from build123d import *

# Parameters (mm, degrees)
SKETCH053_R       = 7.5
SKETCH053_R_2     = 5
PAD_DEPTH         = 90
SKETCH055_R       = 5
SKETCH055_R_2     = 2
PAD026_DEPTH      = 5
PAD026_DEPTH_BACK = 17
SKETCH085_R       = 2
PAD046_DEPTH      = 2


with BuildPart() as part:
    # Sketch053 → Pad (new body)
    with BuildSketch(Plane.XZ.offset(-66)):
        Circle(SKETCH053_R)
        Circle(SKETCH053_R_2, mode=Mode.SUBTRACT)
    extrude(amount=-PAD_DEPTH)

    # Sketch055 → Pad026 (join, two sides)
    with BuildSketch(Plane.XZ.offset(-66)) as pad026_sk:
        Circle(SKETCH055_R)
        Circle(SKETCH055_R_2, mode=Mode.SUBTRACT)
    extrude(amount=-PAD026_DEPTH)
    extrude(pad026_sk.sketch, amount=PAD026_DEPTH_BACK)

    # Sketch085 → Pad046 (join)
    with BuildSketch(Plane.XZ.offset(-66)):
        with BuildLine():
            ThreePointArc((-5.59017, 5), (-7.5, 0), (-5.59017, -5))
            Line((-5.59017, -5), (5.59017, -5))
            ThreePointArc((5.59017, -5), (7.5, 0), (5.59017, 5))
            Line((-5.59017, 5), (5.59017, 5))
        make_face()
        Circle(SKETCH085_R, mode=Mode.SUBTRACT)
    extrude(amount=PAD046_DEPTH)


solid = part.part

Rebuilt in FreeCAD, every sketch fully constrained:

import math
import FreeCAD as App
import Part
import Sketcher

V = App.Vector

doc = App.newDocument("Part")
body = doc.addObject("PartDesign::Body", "Body")

sketch1 = doc.addObject("Sketcher::SketchObject", "Sketch")
body.addObject(sketch1)
sketch1.AttachmentSupport = (doc.XZ_Plane, [""])
sketch1.MapMode = "FlatFace"
sketch1.AttachmentOffset = App.Placement(V(0, 0, -66), App.Rotation())
sketch1.addGeometry([
    Part.Circle(V(0, 0, 0), V(0, 0, 1), 8),
    Part.Circle(V(0, 0, 0), V(0, 0, 1), 5),
], False)
sketch1.addConstraint([
    Sketcher.Constraint("Coincident", 0, 3, -1, 1),
    Sketcher.Constraint("Coincident", 1, 3, -1, 1),
    Sketcher.Constraint("Diameter", 0, 15.0),
    Sketcher.Constraint("Diameter", 1, 10.0),
])
pad1 = doc.addObject("PartDesign::Pad", "Pad")
body.addObject(pad1)
pad1.Profile = sketch1
pad1.Length = 90
pad1.Reversed = True

sketch2 = doc.addObject("Sketcher::SketchObject", "Sketch001")
body.addObject(sketch2)
sketch2.AttachmentSupport = (doc.XZ_Plane, [""])
sketch2.MapMode = "FlatFace"
sketch2.AttachmentOffset = App.Placement(V(0, 0, -66), App.Rotation())
sketch2.addGeometry([
    Part.Circle(V(0, 0, 0), V(0, 0, 1), 5),
    Part.Circle(V(0, 0, 0), V(0, 0, 1), 2),
], False)
sketch2.addConstraint([
    Sketcher.Constraint("Coincident", 0, 3, -1, 1),
    Sketcher.Constraint("Coincident", 1, 3, -1, 1),
    Sketcher.Constraint("Diameter", 0, 10.0),
    Sketcher.Constraint("Diameter", 1, 4.0),
])
pad2 = doc.addObject("PartDesign::Pad", "Pad001")
body.addObject(pad2)
pad2.Profile = sketch2
pad2.Type = "TwoLengths"
pad2.Length = 5
pad2.Length2 = 17
pad2.Reversed = True

sketch3 = doc.addObject("Sketcher::SketchObject", "Sketch002")
body.addObject(sketch3)
sketch3.AttachmentSupport = (doc.XZ_Plane, [""])
sketch3.MapMode = "FlatFace"
sketch3.AttachmentOffset = App.Placement(V(0, 0, -66), App.Rotation())
sketch3.addGeometry([
    Part.ArcOfCircle(Part.Circle(V(0, 0, 0), V(0, 0, 1), 7.5), math.radians(138), math.radians(222)),
    Part.LineSegment(V(-5.6, -5, 0), V(5.6, -5, 0)),
    Part.ArcOfCircle(Part.Circle(V(0, 0, 0), V(0, 0, 1), 7.5), math.radians(-42), math.radians(42)),
    Part.LineSegment(V(5.6, 5, 0), V(-5.6, 5, 0)),
    Part.Circle(V(0, 0, 0), V(0, 0, 1), 2),
], False)
sketch3.addConstraint([
    Sketcher.Constraint("Coincident", 0, 2, 1, 1),
    Sketcher.Constraint("Coincident", 1, 2, 2, 1),
    Sketcher.Constraint("Coincident", 2, 2, 3, 1),
    Sketcher.Constraint("Coincident", 3, 2, 0, 1),
    Sketcher.Constraint("Horizontal", 1),
    Sketcher.Constraint("Horizontal", 3),
    Sketcher.Constraint("Coincident", 0, 3, -1, 1),
    Sketcher.Constraint("Coincident", 2, 3, -1, 1),
    Sketcher.Constraint("Coincident", 4, 3, -1, 1),
    Sketcher.Constraint("Equal", 0, 2),
    Sketcher.Constraint("Vertical", 1, 2, 2, 2),
    Sketcher.Constraint("Diameter", 4, 4.0),
    Sketcher.Constraint("Radius", 0, 7.5),
    Sketcher.Constraint("DistanceY", 0, 2, -1, 1, 5.0),
])
pad3 = doc.addObject("PartDesign::Pad", "Pad002")
body.addObject(pad3)
pad3.Profile = sketch3
pad3.Length = 2

doc.recompute()
